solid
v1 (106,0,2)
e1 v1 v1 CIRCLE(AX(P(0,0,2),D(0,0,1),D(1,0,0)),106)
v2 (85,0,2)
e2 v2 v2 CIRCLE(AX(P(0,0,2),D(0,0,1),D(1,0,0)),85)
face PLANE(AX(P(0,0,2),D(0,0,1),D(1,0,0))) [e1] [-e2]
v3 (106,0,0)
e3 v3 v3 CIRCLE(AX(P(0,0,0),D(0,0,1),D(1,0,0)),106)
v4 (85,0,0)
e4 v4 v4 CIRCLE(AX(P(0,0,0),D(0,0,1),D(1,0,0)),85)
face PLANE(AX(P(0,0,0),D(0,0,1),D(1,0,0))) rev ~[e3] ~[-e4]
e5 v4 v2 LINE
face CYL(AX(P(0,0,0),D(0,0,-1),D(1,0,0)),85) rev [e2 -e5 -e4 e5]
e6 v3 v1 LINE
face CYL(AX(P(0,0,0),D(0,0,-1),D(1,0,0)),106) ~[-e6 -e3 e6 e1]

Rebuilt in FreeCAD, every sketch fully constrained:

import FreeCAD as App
import Part
import Sketcher
Q = App.Units.Quantity

doc = App.newDocument("Part")
params = doc.addObject("Spreadsheet::Sheet", "Params")
for row, (alias, value) in enumerate([
    ("sketch1_diameter", "212 mm"),
    ("sketch1_diameter2", "170 mm"),
    ("pad1_length", "2 mm"),
], start=1):
    params.set(f"A{row}", alias)
    params.set(f"B{row}", "=" + value)
    params.setAlias(f"B{row}", alias)

body = doc.addObject("PartDesign::Body", "Body")

sketch1 = body.newObject("Sketcher::SketchObject", "Sketch")
sketch1.AttachmentSupport = (doc.getObject("XY_Plane"), [""])
sketch1.MapMode = "FlatFace"
sketch1.addGeometry([
    Part.Circle(App.Vector(0, 0, 0), App.Vector(0, 0, 1), 106),
    Part.Circle(App.Vector(0, 0, 0), App.Vector(0, 0, 1), 85),
], False)
sketch1.addConstraint([
    Sketcher.Constraint("Coincident", 0, 3, -1, 1),
    Sketcher.Constraint("Coincident", 1, 3, -1, 1),
    Sketcher.Constraint("Diameter", 0, Q("212 mm")),
    Sketcher.Constraint("Diameter", 1, Q("170 mm")),
])
sketch1.setExpression("Constraints[2]", "Params.sketch1_diameter")
sketch1.setExpression("Constraints[3]", "Params.sketch1_diameter2")
pad1 = body.newObject("PartDesign::Pad", "Pad")
pad1.Profile = sketch1
pad1.setExpression("Length", "Params.pad1_length")

doc.recompute()
